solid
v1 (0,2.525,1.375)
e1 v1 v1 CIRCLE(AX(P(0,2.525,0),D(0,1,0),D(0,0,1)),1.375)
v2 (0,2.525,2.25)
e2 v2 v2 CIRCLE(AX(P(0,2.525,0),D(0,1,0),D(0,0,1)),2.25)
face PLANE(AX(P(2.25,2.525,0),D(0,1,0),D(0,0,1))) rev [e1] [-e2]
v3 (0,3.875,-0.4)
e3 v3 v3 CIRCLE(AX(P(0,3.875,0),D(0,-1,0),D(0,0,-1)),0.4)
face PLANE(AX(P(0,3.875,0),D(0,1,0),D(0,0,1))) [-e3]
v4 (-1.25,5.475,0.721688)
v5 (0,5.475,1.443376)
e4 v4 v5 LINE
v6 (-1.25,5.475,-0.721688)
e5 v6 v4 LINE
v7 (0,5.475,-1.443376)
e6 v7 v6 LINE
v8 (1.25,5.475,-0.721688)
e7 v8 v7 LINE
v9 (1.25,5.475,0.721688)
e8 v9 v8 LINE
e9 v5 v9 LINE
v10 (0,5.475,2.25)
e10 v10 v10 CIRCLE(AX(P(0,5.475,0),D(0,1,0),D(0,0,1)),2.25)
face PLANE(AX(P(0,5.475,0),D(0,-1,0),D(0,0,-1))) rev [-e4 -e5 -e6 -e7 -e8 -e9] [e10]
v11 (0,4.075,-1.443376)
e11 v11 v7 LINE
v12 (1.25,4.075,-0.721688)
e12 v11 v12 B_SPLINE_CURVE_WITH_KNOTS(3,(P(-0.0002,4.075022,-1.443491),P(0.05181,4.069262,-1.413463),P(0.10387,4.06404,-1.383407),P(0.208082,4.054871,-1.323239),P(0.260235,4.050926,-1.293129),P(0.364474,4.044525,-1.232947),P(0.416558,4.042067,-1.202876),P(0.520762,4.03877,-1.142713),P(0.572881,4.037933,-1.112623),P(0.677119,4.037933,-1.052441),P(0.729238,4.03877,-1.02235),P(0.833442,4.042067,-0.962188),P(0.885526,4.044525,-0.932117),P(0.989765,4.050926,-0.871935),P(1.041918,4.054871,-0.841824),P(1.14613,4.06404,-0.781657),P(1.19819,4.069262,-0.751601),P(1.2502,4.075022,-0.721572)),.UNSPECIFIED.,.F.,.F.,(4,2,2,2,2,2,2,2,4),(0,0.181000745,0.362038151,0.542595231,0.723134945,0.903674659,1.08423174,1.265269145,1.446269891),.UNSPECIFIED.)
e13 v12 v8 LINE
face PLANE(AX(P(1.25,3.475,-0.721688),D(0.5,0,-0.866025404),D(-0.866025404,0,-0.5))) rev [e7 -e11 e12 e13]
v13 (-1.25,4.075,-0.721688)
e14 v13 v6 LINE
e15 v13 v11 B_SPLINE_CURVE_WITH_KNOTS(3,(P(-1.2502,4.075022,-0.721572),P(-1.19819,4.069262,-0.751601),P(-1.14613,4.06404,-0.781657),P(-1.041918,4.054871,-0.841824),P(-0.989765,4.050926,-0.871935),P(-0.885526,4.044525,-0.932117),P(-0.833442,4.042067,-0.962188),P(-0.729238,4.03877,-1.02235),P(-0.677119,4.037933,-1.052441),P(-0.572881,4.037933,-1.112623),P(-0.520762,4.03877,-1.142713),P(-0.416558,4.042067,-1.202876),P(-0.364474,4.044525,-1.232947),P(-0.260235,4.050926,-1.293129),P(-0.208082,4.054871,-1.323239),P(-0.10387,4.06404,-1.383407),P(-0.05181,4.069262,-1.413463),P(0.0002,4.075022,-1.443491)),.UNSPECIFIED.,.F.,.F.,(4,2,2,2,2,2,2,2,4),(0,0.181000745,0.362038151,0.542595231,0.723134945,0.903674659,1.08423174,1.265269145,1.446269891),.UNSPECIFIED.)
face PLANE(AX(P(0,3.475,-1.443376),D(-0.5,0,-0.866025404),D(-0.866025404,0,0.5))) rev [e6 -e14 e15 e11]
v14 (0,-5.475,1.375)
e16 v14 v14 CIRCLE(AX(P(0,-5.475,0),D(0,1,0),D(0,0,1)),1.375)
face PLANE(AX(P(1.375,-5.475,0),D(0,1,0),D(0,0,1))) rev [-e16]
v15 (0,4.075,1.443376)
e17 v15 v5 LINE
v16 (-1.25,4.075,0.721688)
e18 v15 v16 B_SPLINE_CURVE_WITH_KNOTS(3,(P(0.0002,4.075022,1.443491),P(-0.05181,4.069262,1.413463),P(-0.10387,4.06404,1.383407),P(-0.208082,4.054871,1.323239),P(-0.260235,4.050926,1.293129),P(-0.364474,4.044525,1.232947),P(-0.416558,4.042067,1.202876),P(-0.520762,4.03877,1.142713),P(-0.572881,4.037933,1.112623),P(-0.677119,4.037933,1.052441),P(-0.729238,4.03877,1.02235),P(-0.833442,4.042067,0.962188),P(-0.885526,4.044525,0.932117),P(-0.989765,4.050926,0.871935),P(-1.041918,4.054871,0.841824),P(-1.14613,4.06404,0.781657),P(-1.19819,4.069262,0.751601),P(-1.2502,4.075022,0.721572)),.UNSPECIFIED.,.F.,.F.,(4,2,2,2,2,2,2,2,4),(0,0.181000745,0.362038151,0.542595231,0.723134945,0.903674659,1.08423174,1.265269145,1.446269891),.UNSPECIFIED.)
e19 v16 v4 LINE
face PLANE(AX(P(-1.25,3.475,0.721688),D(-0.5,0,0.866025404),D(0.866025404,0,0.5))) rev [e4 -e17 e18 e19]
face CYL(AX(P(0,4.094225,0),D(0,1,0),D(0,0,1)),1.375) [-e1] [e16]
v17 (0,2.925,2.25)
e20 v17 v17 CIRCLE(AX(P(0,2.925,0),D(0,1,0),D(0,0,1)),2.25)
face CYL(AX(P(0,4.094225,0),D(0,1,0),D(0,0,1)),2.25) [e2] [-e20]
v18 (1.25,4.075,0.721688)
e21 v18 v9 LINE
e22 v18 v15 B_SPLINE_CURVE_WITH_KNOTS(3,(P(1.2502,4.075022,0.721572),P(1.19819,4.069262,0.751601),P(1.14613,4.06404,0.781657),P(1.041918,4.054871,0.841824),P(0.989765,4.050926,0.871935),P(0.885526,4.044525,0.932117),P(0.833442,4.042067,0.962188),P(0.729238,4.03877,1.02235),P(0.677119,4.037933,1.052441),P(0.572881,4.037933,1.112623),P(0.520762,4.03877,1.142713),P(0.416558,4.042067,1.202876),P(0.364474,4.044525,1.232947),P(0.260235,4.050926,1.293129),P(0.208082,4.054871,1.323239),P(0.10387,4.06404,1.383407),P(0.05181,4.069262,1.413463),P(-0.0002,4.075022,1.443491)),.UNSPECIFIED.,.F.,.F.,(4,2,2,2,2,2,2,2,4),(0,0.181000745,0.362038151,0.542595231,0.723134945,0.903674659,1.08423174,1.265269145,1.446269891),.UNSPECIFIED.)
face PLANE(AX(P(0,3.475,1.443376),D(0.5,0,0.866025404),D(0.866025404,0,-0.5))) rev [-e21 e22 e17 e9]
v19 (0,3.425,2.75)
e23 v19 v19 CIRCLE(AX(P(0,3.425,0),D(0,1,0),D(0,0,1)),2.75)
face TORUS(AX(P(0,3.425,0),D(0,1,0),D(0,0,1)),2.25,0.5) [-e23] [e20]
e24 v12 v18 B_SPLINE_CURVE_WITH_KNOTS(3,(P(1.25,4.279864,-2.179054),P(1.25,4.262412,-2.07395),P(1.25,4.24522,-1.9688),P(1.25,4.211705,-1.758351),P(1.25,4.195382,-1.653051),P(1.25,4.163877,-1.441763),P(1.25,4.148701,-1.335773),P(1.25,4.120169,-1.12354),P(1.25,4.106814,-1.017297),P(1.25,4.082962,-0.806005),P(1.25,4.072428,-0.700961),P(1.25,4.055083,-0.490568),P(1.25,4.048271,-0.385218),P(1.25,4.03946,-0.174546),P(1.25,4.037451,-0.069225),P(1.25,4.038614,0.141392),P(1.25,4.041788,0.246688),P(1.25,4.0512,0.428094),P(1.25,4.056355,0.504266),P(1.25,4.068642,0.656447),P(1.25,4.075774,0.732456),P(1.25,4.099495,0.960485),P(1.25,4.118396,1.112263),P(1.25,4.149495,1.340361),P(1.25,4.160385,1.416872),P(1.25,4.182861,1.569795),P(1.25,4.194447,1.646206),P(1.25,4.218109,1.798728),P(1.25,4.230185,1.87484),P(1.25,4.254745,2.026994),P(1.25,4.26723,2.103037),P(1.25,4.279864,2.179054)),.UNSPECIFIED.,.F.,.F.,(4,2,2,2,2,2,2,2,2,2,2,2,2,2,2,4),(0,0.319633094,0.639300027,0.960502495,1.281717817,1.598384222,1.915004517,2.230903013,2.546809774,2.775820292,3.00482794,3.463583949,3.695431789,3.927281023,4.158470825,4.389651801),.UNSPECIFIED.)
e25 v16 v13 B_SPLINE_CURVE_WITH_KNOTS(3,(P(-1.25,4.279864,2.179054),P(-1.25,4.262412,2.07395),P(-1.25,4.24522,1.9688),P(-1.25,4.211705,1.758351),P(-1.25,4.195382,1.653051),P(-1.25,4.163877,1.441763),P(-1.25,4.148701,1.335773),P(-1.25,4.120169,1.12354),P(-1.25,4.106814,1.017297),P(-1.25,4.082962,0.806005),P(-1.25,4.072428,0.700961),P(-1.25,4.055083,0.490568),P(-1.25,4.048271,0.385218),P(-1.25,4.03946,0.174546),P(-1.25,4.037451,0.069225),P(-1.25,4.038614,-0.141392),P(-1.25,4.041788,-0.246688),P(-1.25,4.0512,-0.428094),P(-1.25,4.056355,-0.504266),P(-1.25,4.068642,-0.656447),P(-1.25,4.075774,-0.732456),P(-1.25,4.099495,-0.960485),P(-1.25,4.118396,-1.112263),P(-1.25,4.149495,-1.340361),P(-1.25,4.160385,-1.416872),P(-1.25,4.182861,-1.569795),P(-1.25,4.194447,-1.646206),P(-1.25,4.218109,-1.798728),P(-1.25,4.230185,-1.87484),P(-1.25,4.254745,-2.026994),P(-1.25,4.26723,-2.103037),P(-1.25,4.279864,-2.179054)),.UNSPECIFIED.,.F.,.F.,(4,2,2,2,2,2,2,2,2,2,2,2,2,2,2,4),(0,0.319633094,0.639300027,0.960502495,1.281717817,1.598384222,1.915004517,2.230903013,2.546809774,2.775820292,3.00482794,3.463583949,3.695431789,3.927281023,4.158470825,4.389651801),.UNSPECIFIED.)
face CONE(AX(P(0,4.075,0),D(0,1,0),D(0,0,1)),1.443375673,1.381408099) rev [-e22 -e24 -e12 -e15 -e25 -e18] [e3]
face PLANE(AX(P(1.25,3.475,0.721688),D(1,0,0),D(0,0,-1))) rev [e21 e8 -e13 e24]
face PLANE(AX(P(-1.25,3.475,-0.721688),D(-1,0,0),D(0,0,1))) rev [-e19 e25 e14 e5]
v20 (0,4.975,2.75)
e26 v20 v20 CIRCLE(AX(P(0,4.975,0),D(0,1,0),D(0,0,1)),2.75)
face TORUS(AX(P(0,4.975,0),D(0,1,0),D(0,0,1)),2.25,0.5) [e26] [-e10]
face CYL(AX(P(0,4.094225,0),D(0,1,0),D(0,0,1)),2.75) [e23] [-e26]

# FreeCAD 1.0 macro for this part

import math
import FreeCAD as App
import Part
import Sketcher
Q = App.Units.Quantity

doc = App.newDocument("Part")
body = doc.addObject("PartDesign::Body", "Body")

sketch1 = body.newObject("Sketcher::SketchObject", "Sketch")
sketch1.AttachmentSupport = (doc.getObject("XY_Plane"), [""])
sketch1.MapMode = "FlatFace"
sketch1.addGeometry([
    Part.LineSegment(App.Vector(2.25, 5.47, 0), App.Vector(0, 5.47, 0)),
    Part.LineSegment(App.Vector(0, 5.47, 0), App.Vector(0, -5.47, 0)),
    Part.LineSegment(App.Vector(0, -5.47, 0), App.Vector(1.38, -5.47, 0)),
    Part.LineSegment(App.Vector(1.38, -5.47, 0), App.Vector(1.38, 2.52, 0)),
    Part.LineSegment(App.Vector(1.38, 2.52, 0), App.Vector(2.25, 2.52, 0)),
    Part.LineSegment(App.Vector(2.25, 2.52, 0), App.Vector(2.25, 2.92, 0)),
    Part.ArcOfCircle(Part.Circle(App.Vector(2.25, 3.42, 0), App.Vector(0, 0, 1), 0.5), math.radians(-90), math.radians(0)),
    Part.LineSegment(App.Vector(2.75, 3.42, 0), App.Vector(2.75, 4.97, 0)),
    Part.ArcOfCircle(Part.Circle(App.Vector(2.25, 4.98, 0), App.Vector(0, 0, 1), 0.5), math.radians(0), math.radians(90)),
], False)
sketch1.addConstraint([
    Sketcher.Constraint("Coincident", 0, 2, 1, 1),
    Sketcher.Constraint("Coincident", 1, 2, 2, 1),
    Sketcher.Constraint("Coincident", 2, 2, 3, 1),
    Sketcher.Constraint("Coincident", 3, 2, 4, 1),
    Sketcher.Constraint("Coincident", 4, 2, 5, 1),
    Sketcher.Constraint("Coincident", 5, 2, 6, 1),
    Sketcher.Constraint("Tangent", 6, 2, 7, 1),
    Sketcher.Constraint("Tangent", 7, 2, 8, 1),
    Sketcher.Constraint("Tangent", 8, 2, 0, 1),
    Sketcher.Constraint("Horizontal", 0),
    Sketcher.Constraint("Vertical", 1),
    Sketcher.Constraint("Horizontal", 2),
    Sketcher.Constraint("Vertical", 3),
    Sketcher.Constraint("Horizontal", 4),
    Sketcher.Constraint("Vertical", 5),
    Sketcher.Constraint("Vertical", 7),
    Sketcher.Constraint("Equal", 6, 8),
    Sketcher.Constraint("Symmetric", 0, 2, 1, 2, -1, 1),
    Sketcher.Constraint("Vertical", 8, 3, 4, 2),
    Sketcher.Constraint("Radius", 6, 0.5),
    Sketcher.Constraint("DistanceY", 3, 1, 3, 2, 8.0),
    Sketcher.Constraint("DistanceY", 5, 1, 5, 2, 0.4),
    Sketcher.Constraint("DistanceX", 0, 2, 0, 1, 2.25),
    Sketcher.Constraint("DistanceY", 1, 2, 1, 1, 10.95),
    Sketcher.Constraint("DistanceX", 2, 1, 2, 2, 1.375),
])
revolution = body.newObject("PartDesign::Revolution", "Revolution")
revolution.Profile = sketch1
revolution.ReferenceAxis = (sketch1, ["V_Axis"])
revolution.Angle = 360
body2 = doc.addObject("PartDesign::Body", "Body001")

sketch2 = body2.newObject("Sketcher::SketchObject", "Sketch001")
sketch2.AttachmentSupport = (doc.getObject("XZ_Plane001"), [""])
sketch2.MapMode = "FlatFace"
sketch2.AttachmentOffset = App.Placement(App.Vector(0, 0, -5.475), App.Rotation())
sketch2.addGeometry([
    Part.LineSegment(App.Vector(0, -1.4, 0), App.Vector(-1.2, -0.7, 0)),
    Part.LineSegment(App.Vector(-1.2, -0.7, 0), App.Vector(-1.2, 0.7, 0)),
    Part.LineSegment(App.Vector(-1.2, 0.7, 0), App.Vector(0, 1.4, 0)),
    Part.LineSegment(App.Vector(0, 1.4, 0), App.Vector(1.2, 0.7, 0)),
    Part.LineSegment(App.Vector(1.2, 0.7, 0), App.Vector(1.2, -0.7, 0)),
    Part.LineSegment(App.Vector(1.2, -0.7, 0), App.Vector(0, -1.4, 0)),
], False)
sketch2.addConstraint([
    Sketcher.Constraint("Coincident", 0, 2, 1, 1),
    Sketcher.Constraint("Coincident", 1, 2, 2, 1),
    Sketcher.Constraint("Coincident", 2, 2, 3, 1),
    Sketcher.Constraint("Coincident", 3, 2, 4, 1),
    Sketcher.Constraint("Coincident", 4, 2, 5, 1),
    Sketcher.Constraint("Coincident", 5, 2, 0, 1),
    Sketcher.Constraint("Vertical", 1),
    Sketcher.Constraint("Vertical", 4),
    Sketcher.Constraint("Symmetric", 0, 2, 3, 2, -1, 1),
    Sketcher.Constraint("Symmetric", 2, 2, 5, 2, -1, 1),
    Sketcher.Constraint("PointOnObject", 2, 2, -2),
    Sketcher.Constraint("Parallel", 2, 5),
    Sketcher.Constraint("Horizontal", 1, 2, 3, 2),
    Sketcher.Constraint("Angle", 0, Q("150 deg")),
    Sketcher.Constraint("DistanceX", 1, 2, 3, 2, 2.5),
    Sketcher.Constraint("DistanceY", 1, 1, 1, 2, 1.443376),
])
pad1 = body2.newObject("PartDesign::Pad", "Pad")
pad1.Profile = sketch2
pad1.Length = 2

sketch3 = body2.newObject("Sketcher::SketchObject", "Sketch002")
sketch3.AttachmentSupport = (doc.getObject("YZ_Plane001"), [""])
sketch3.MapMode = "FlatFace"
sketch3.addGeometry([
    Part.LineSegment(App.Vector(3.88, -0.4, 0), App.Vector(3.88, 0, 0)),
    Part.LineSegment(App.Vector(3.88, 0, 0), App.Vector(3.48, 0, 0)),
    Part.LineSegment(App.Vector(3.48, 0, 0), App.Vector(3.48, -1.44, 0)),
    Part.LineSegment(App.Vector(3.48, -1.44, 0), App.Vector(4.08, -1.44, 0)),
    Part.LineSegment(App.Vector(4.08, -1.44, 0), App.Vector(3.88, -0.4, 0)),
], False)
sketch3.addConstraint([
    Sketcher.Constraint("Coincident", 0, 2, 1, 1),
    Sketcher.Constraint("Coincident", 1, 2, 2, 1),
    Sketcher.Constraint("Coincident", 2, 2, 3, 1),
    Sketcher.Constraint("Coincident", 3, 2, 4, 1),
    Sketcher.Constraint("Coincident", 4, 2, 0, 1),
    Sketcher.Constraint("Vertical", 0),
    Sketcher.Constraint("Horizontal", 1),
    Sketcher.Constraint("Vertical", 2),
    Sketcher.Constraint("Horizontal", 3),
    Sketcher.Constraint("PointOnObject", 0, 2, -1),
    Sketcher.Constraint("Equal", 1, 0),
    Sketcher.Constraint("DistanceX", 1, 2, 1, 1, 0.4),
    Sketcher.Constraint("DistanceX", 3, 1, 3, 2, 0.6),
    Sketcher.Constraint("DistanceX", -1, 1, 0, 2, 3.875),
    Sketcher.Constraint("Distance", 4, 1.062371),
])
groove = body2.newObject("PartDesign::Groove", "Groove")
groove.Profile = sketch3
groove.ReferenceAxis = (sketch3, ["H_Axis"])
groove.Angle = 360
doc.recompute()

boolean = body.newObject("PartDesign::Boolean", "Boolean")
boolean.Type = "Cut"
boolean.addObjects([body2])

doc.recompute()
